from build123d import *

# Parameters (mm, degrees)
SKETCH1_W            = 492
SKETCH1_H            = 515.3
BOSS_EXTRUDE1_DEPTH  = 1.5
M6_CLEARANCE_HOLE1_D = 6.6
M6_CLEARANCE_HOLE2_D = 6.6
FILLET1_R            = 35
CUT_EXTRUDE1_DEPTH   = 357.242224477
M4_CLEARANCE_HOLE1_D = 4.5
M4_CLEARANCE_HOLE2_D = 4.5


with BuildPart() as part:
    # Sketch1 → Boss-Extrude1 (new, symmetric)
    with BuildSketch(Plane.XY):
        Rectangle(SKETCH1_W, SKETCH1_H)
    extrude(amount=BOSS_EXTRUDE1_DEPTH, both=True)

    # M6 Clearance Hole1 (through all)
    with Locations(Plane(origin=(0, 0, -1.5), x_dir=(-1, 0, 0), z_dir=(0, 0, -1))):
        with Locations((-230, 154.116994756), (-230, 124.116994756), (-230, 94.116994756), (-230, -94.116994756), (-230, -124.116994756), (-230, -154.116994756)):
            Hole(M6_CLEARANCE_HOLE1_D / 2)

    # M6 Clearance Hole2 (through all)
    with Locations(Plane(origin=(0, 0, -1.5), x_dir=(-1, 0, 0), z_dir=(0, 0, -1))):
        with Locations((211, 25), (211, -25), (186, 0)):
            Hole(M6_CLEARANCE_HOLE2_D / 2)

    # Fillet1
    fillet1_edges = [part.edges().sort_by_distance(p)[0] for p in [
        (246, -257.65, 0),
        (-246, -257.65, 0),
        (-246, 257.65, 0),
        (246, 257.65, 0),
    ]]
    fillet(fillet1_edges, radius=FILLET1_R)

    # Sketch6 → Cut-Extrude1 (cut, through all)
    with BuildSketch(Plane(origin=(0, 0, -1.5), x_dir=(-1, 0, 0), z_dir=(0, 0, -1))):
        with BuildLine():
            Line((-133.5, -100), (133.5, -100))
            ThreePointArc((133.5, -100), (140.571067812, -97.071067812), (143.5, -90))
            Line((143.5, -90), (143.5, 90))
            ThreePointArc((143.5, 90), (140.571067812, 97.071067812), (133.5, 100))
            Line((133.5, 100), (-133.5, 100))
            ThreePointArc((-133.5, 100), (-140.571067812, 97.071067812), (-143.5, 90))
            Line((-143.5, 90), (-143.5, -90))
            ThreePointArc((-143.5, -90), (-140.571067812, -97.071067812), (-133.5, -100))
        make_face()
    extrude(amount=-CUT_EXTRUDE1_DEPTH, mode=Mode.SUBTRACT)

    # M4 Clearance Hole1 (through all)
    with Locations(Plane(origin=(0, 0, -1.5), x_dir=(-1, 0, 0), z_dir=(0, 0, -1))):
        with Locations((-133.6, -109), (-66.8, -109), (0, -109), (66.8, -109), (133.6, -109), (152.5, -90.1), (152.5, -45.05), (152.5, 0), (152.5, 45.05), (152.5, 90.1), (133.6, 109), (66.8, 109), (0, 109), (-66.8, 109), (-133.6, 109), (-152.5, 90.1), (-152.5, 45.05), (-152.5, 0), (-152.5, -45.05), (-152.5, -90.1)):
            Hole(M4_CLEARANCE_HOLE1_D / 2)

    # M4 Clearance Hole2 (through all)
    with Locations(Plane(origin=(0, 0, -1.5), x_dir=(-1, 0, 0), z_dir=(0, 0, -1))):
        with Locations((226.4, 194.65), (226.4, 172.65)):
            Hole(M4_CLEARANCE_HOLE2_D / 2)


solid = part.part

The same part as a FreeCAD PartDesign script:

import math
import FreeCAD as App
import Part
import Sketcher
Q = App.Units.Quantity


def edges_at(feature, points):
    """Names of the edges that pass closest to the given points."""
    edges = feature.Shape.Edges
    near = lambda p: min(range(len(edges)), key=lambda i: edges[i].distToShape(Part.Vertex(*p))[0])
    return sorted({f"Edge{near(p) + 1}" for p in points})


def add_polygon(sketch, points):
    """Adds a closed chain of lines whose ends are joined by coincident constraints."""
    first, n = sketch.GeometryCount, len(points)
    for a, b in zip(points, points[1:] + points[:1]):
        sketch.addGeometry(Part.LineSegment(App.Vector(*a, 0), App.Vector(*b, 0)), False)
    for i in range(n):
        sketch.addConstraint(Sketcher.Constraint("Coincident", first + i, 2, first + (i + 1) % n, 1))

doc = App.newDocument("Part")
body = doc.addObject("PartDesign::Body", "Body")

# Sketch on XY plane
sketch1 = doc.addObject("Sketcher::SketchObject", "Sketch")
body.addObject(sketch1)
sketch1.AttachmentSupport = (doc.XY_Plane, [""])
sketch1.MapMode = "FlatFace"
add_polygon(sketch1, [(-246, 258), (-246, -258), (246, -258), (246, 258)])  # lines 0-3
sketch1.addConstraint([
    Sketcher.Constraint("Vertical", 0),
    Sketcher.Constraint("Horizontal", 1),
    Sketcher.Constraint("Vertical", 2),
    Sketcher.Constraint("Horizontal", 3),
    Sketcher.Constraint("Symmetric", 0, 2, 2, 2, -1, 1),
    Sketcher.Constraint("DistanceX", 1, 1, 1, 2, Q("492 mm")),
    Sketcher.Constraint("DistanceY", 0, 2, 0, 1, Q("515.3 mm")),
])
pad1 = doc.addObject("PartDesign::Pad", "Pad")
body.addObject(pad1)
pad1.Profile = sketch1
pad1.Length = 3
pad1.Midplane = True

# Sketch on XY plane
sketch2 = doc.addObject("Sketcher::SketchObject", "Sketch001")
body.addObject(sketch2)
sketch2.AttachmentSupport = (doc.XY_Plane, [""])
sketch2.MapMode = "FlatFace"
sketch2.AttachmentOffset = App.Placement(App.Vector(0, 0, -1.5), App.Rotation())
sketch2.addGeometry([
    Part.Circle(App.Vector(230, 154.1, 0), App.Vector(0, 0, 1), 3.3),  # 0
    Part.Circle(App.Vector(230, 124.1, 0), App.Vector(0, 0, 1), 3.3),  # 1
    Part.Circle(App.Vector(230, 94.1, 0), App.Vector(0, 0, 1), 3.3),  # 2
    Part.Circle(App.Vector(230, -94.1, 0), App.Vector(0, 0, 1), 3.3),  # 3
    Part.Circle(App.Vector(230, -124.1, 0), App.Vector(0, 0, 1), 3.3),  # 4
    Part.Circle(App.Vector(230, -154.1, 0), App.Vector(0, 0, 1), 3.3),  # 5
], False)
sketch2.addConstraint([
    Sketcher.Constraint("Equal", 0, 1),
    Sketcher.Constraint("Equal", 1, 2),
    Sketcher.Constraint("Equal", 2, 3),
    Sketcher.Constraint("Equal", 3, 4),
    Sketcher.Constraint("Equal", 4, 5),
    Sketcher.Constraint("Symmetric", 2, 3, 3, 3, -1),
    Sketcher.Constraint("Symmetric", 1, 3, 4, 3, -1),
    Sketcher.Constraint("Symmetric", 0, 3, 5, 3, -1),
    Sketcher.Constraint("Vertical", 0, 3, 1, 3),
    Sketcher.Constraint("Vertical", 1, 3, 2, 3),
    Sketcher.Constraint("Diameter", 0, Q("6.6 mm")),
    Sketcher.Constraint("DistanceX", -1, 1, 0, 3, Q("230 mm")),
    Sketcher.Constraint("DistanceY", 1, 3, 0, 3, Q("30 mm")),
    Sketcher.Constraint("DistanceY", 2, 3, 1, 3, Q("30 mm")),
    Sketcher.Constraint("DistanceY", 3, 3, 2, 3, Q("188.23399 mm")),
])
doc.recompute()
hole = doc.addObject("PartDesign::Hole", "Hole")
body.addObject(hole)
hole.Profile = sketch2
hole.ThreadType = "None"
hole.Diameter = 6.6
hole.DepthType = "ThroughAll"
hole.Reversed = True

# Sketch on XY plane
sketch3 = doc.addObject("Sketcher::SketchObject", "Sketch002")
body.addObject(sketch3)
sketch3.AttachmentSupport = (doc.XY_Plane, [""])
sketch3.MapMode = "FlatFace"
sketch3.AttachmentOffset = App.Placement(App.Vector(0, 0, -1.5), App.Rotation())
sketch3.addGeometry([
    Part.Circle(App.Vector(-211, 25, 0), App.Vector(0, 0, 1), 3.3),
    Part.Circle(App.Vector(-211, -25, 0), App.Vector(0, 0, 1), 3.3),
    Part.Circle(App.Vector(-186, 0, 0), App.Vector(0, 0, 1), 3.3),
], False)
sketch3.addConstraint([
    Sketcher.Constraint("Equal", 0, 1),
    Sketcher.Constraint("Equal", 1, 2),
    Sketcher.Constraint("Symmetric", 0, 3, 1, 3, -1),
    Sketcher.Constraint("PointOnObject", 2, 3, -1),
    Sketcher.Constraint("Diameter", 0, Q("6.6 mm")),
    Sketcher.Constraint("DistanceX", 0, 3, -1, 1, Q("211 mm")),
    Sketcher.Constraint("DistanceY", -1, 1, 0, 3, Q("25 mm")),
    Sketcher.Constraint("DistanceX", 2, 3, -1, 1, Q("186 mm")),
])
doc.recompute()
hole2 = doc.addObject("PartDesign::Hole", "Hole001")
body.addObject(hole2)
hole2.Profile = sketch3
hole2.ThreadType = "None"
hole2.Diameter = 6.6
hole2.DepthType = "ThroughAll"
hole2.Reversed = True
doc.recompute()

fillet = doc.addObject("PartDesign::Fillet", "Fillet")
body.addObject(fillet)
fillet.Base = (hole2, edges_at(hole2, [
    (246, -257.65, 0),
    (-246, -257.65, 0),
    (-246, 257.65, 0),
    (246, 257.65, 0),
]))
fillet.Radius = 35

# Sketch on XY plane
sketch4 = doc.addObject("Sketcher::SketchObject", "Sketch003")
body.addObject(sketch4)
sketch4.AttachmentSupport = (doc.XY_Plane, [""])
sketch4.MapMode = "FlatFace"
sketch4.AttachmentOffset = App.Placement(App.Vector(0, 0, -1.5), App.Rotation())
sketch4.addGeometry([
    Part.LineSegment(App.Vector(134, -100, 0), App.Vector(-134, -100, 0)),  # 0
    Part.ArcOfCircle(Part.Circle(App.Vector(-134, -90, 0), App.Vector(0, 0, 1), 10), math.radians(180), math.radians(270)),  # 1
    Part.LineSegment(App.Vector(-144, -90, 0), App.Vector(-144, 90, 0)),  # 2
    Part.ArcOfCircle(Part.Circle(App.Vector(-134, 90, 0), App.Vector(0, 0, 1), 10), math.radians(90), math.radians(180)),  # 3
    Part.LineSegment(App.Vector(-134, 100, 0), App.Vector(134, 100, 0)),  # 4
    Part.ArcOfCircle(Part.Circle(App.Vector(134, 90, 0), App.Vector(0, 0, 1), 10), math.radians(0), math.radians(90)),  # 5
    Part.LineSegment(App.Vector(144, 90, 0), App.Vector(144, -90, 0)),  # 6
    Part.ArcOfCircle(Part.Circle(App.Vector(134, -90, 0), App.Vector(0, 0, 1), 10), math.radians(-90), math.radians(0)),  # 7
], False)
sketch4.addConstraint([
    Sketcher.Constraint("Tangent", 0, 2, 1, 2),
    Sketcher.Constraint("Tangent", 1, 1, 2, 1),
    Sketcher.Constraint("Tangent", 2, 2, 3, 2),
    Sketcher.Constraint("Tangent", 3, 1, 4, 1),
    Sketcher.Constraint("Tangent", 4, 2, 5, 2),
    Sketcher.Constraint("Tangent", 5, 1, 6, 1),
    Sketcher.Constraint("Tangent", 6, 2, 7, 2),
    Sketcher.Constraint("Tangent", 7, 1, 0, 1),
    Sketcher.Constraint("Horizontal", 0),
    Sketcher.Constraint("Vertical", 2),
    Sketcher.Constraint("Horizontal", 4),
    Sketcher.Constraint("Vertical", 6),
    Sketcher.Constraint("Equal", 1, 3),
    Sketcher.Constraint("Equal", 3, 5),
    Sketcher.Constraint("Equal", 5, 7),
    Sketcher.Constraint("Symmetric", 1, 3, 5, 3, -1, 1),
    Sketcher.Constraint("Radius", 1, Q("10 mm")),
    Sketcher.Constraint("DistanceX", 0, 2, 0, 1, Q("267 mm")),
    Sketcher.Constraint("DistanceY", 2, 1, 2, 2, Q("180 mm")),
])
pocket1 = doc.addObject("PartDesign::Pocket", "Pocket")
body.addObject(pocket1)
pocket1.Profile = sketch4
pocket1.Type = "ThroughAll"
pocket1.Reversed = True

# Sketch on XY plane
sketch5 = doc.addObject("Sketcher::SketchObject", "Sketch004")
body.addObject(sketch5)
sketch5.AttachmentSupport = (doc.XY_Plane, [""])
sketch5.MapMode = "FlatFace"
sketch5.AttachmentOffset = App.Placement(App.Vector(0, 0, -1.5), App.Rotation())
sketch5.addGeometry([
    Part.Circle(App.Vector(133.6, -109, 0), App.Vector(0, 0, 1), 2.2),  # 0
    Part.Circle(App.Vector(66.8, -109, 0), App.Vector(0, 0, 1), 2.2),  # 1
    Part.Circle(App.Vector(0, -109, 0), App.Vector(0, 0, 1), 2.2),  # 2
    Part.Circle(App.Vector(-66.8, -109, 0), App.Vector(0, 0, 1), 2.2),  # 3
    Part.Circle(App.Vector(-133.6, -109, 0), App.Vector(0, 0, 1), 2.2),  # 4
    Part.Circle(App.Vector(-152.5, -90.1, 0), App.Vector(0, 0, 1), 2.2),  # 5
    Part.Circle(App.Vector(-152.5, -45, 0), App.Vector(0, 0, 1), 2.2),  # 6
    Part.Circle(App.Vector(-152.5, 0, 0), App.Vector(0, 0, 1), 2.2),  # 7
    Part.Circle(App.Vector(-152.5, 45, 0), App.Vector(0, 0, 1), 2.2),  # 8
    Part.Circle(App.Vector(-152.5, 90.1, 0), App.Vector(0, 0, 1), 2.2),  # 9
    Part.Circle(App.Vector(-133.6, 109, 0), App.Vector(0, 0, 1), 2.2),  # 10
    Part.Circle(App.Vector(-66.8, 109, 0), App.Vector(0, 0, 1), 2.2),  # 11
    Part.Circle(App.Vector(0, 109, 0), App.Vector(0, 0, 1), 2.2),  # 12
    Part.Circle(App.Vector(66.8, 109, 0), App.Vector(0, 0, 1), 2.2),  # 13
    Part.Circle(App.Vector(133.6, 109, 0), App.Vector(0, 0, 1), 2.2),  # 14
    Part.Circle(App.Vector(152.5, 90.1, 0), App.Vector(0, 0, 1), 2.2),  # 15
    Part.Circle(App.Vector(152.5, 45, 0), App.Vector(0, 0, 1), 2.2),  # 16
    Part.Circle(App.Vector(152.5, 0, 0), App.Vector(0, 0, 1), 2.2),  # 17
    Part.Circle(App.Vector(152.5, -45, 0), App.Vector(0, 0, 1), 2.2),  # 18
    Part.Circle(App.Vector(152.5, -90.1, 0), App.Vector(0, 0, 1), 2.2),  # 19
], False)
sketch5.addConstraint([
    Sketcher.Constraint("Equal", 0, 1),
    Sketcher.Constraint("Equal", 1, 2),
    Sketcher.Constraint("Equal", 2, 3),
    Sketcher.Constraint("Equal", 3, 4),
    Sketcher.Constraint("Equal", 4, 5),
    Sketcher.Constraint("Equal", 5, 6),
    Sketcher.Constraint("Equal", 6, 7),
    Sketcher.Constraint("Equal", 7, 8),
    Sketcher.Constraint("Equal", 8, 9),
    Sketcher.Constraint("Equal", 9, 10),
    Sketcher.Constraint("Equal", 10, 11),
    Sketcher.Constraint("Equal", 11, 12),
    Sketcher.Constraint("Equal", 12, 13),
    Sketcher.Constraint("Equal", 13, 14),
    Sketcher.Constraint("Equal", 14, 15),
    Sketcher.Constraint("Equal", 15, 16),
    Sketcher.Constraint("Equal", 16, 17),
    Sketcher.Constraint("Equal", 17, 18),
    Sketcher.Constraint("Equal", 18, 19),
    Sketcher.Constraint("Symmetric", 0, 3, 10, 3, -1, 1),
    Sketcher.Constraint("Symmetric", 1, 3, 11, 3, -1, 1),
    Sketcher.Constraint("Symmetric", 2, 3, 12, 3, -1, 1),
    Sketcher.Constraint("Symmetric", 3, 3, 13, 3, -1, 1),
    Sketcher.Constraint("Symmetric", 4, 3, 14, 3, -1, 1),
    Sketcher.Constraint("Symmetric", 5, 3, 15, 3, -1, 1),
    Sketcher.Constraint("Symmetric", 6, 3, 16, 3, -1, 1),
    Sketcher.Constraint("Symmetric", 7, 3, 17, 3, -1, 1),
    Sketcher.Constraint("Symmetric", 8, 3, 18, 3, -1, 1),
    Sketcher.Constraint("Symmetric", 9, 3, 19, 3, -1, 1),
    Sketcher.Constraint("Symmetric", 1, 3, 3, 3, -2),
    Sketcher.Constraint("Symmetric", 0, 3, 4, 3, -2),
    Sketcher.Constraint("Symmetric", 9, 3, 15, 3, -2),
    Sketcher.Constraint("Symmetric", 8, 3, 16, 3, -2),
    Sketcher.Constraint("PointOnObject", 2, 3, -2),
    Sketcher.Constraint("PointOnObject", 7, 3, -1),
    Sketcher.Constraint("Horizontal", 0, 3, 1, 3),
    Sketcher.Constraint("Horizontal", 1, 3, 2, 3),
    Sketcher.Constraint("Vertical", 5, 3, 6, 3),
    Sketcher.Constraint("Vertical", 6, 3, 7, 3),
    Sketcher.Constraint("Diameter", 0, Q("4.5 mm")),
    Sketcher.Constraint("DistanceY", 0, 3, -1, 1, Q("109 mm")),
    Sketcher.Constraint("DistanceX", -1, 1, 0, 3, Q("133.6 mm")),
    Sketcher.Constraint("DistanceX", -1, 1, 1, 3, Q("66.8 mm")),
    Sketcher.Constraint("DistanceX", 5, 3, -1, 1, Q("152.5 mm")),
    Sketcher.Constraint("DistanceY", 5, 3, -1, 1, Q("90.1 mm")),
    Sketcher.Constraint("DistanceY", 6, 3, 8, 3, Q("90.1 mm")),
])
doc.recompute()
hole3 = doc.addObject("PartDesign::Hole", "Hole002")
body.addObject(hole3)
hole3.Profile = sketch5
hole3.ThreadType = "None"
hole3.Diameter = 4.5
hole3.DepthType = "ThroughAll"
hole3.Reversed = True

# Sketch on XY plane
sketch6 = doc.addObject("Sketcher::SketchObject", "Sketch005")
body.addObject(sketch6)
sketch6.AttachmentSupport = (doc.XY_Plane, [""])
sketch6.MapMode = "FlatFace"
sketch6.AttachmentOffset = App.Placement(App.Vector(0, 0, -1.5), App.Rotation())
sketch6.addGeometry([
    Part.Circle(App.Vector(-226.4, 194.7, 0), App.Vector(0, 0, 1), 2.2),
    Part.Circle(App.Vector(-226.4, 172.7, 0), App.Vector(0, 0, 1), 2.2),
], False)
sketch6.addConstraint([
    Sketcher.Constraint("Equal", 0, 1),
    Sketcher.Constraint("Vertical", 0, 3, 1, 3),
    Sketcher.Constraint("Diameter", 0, Q("4.5 mm")),
    Sketcher.Constraint("DistanceY", 1, 3, 0, 3, Q("22 mm")),
    Sketcher.Constraint("DistanceX", 0, 3, -1, 1, Q("226.4 mm")),
    Sketcher.Constraint("DistanceY", -1, 1, 0, 3, Q("194.65 mm")),
])
doc.recompute()
hole4 = doc.addObject("PartDesign::Hole", "Hole003")
body.addObject(hole4)
hole4.Profile = sketch6
hole4.ThreadType = "None"
hole4.Diameter = 4.5
hole4.DepthType = "ThroughAll"
hole4.Reversed = True

doc.recompute()
